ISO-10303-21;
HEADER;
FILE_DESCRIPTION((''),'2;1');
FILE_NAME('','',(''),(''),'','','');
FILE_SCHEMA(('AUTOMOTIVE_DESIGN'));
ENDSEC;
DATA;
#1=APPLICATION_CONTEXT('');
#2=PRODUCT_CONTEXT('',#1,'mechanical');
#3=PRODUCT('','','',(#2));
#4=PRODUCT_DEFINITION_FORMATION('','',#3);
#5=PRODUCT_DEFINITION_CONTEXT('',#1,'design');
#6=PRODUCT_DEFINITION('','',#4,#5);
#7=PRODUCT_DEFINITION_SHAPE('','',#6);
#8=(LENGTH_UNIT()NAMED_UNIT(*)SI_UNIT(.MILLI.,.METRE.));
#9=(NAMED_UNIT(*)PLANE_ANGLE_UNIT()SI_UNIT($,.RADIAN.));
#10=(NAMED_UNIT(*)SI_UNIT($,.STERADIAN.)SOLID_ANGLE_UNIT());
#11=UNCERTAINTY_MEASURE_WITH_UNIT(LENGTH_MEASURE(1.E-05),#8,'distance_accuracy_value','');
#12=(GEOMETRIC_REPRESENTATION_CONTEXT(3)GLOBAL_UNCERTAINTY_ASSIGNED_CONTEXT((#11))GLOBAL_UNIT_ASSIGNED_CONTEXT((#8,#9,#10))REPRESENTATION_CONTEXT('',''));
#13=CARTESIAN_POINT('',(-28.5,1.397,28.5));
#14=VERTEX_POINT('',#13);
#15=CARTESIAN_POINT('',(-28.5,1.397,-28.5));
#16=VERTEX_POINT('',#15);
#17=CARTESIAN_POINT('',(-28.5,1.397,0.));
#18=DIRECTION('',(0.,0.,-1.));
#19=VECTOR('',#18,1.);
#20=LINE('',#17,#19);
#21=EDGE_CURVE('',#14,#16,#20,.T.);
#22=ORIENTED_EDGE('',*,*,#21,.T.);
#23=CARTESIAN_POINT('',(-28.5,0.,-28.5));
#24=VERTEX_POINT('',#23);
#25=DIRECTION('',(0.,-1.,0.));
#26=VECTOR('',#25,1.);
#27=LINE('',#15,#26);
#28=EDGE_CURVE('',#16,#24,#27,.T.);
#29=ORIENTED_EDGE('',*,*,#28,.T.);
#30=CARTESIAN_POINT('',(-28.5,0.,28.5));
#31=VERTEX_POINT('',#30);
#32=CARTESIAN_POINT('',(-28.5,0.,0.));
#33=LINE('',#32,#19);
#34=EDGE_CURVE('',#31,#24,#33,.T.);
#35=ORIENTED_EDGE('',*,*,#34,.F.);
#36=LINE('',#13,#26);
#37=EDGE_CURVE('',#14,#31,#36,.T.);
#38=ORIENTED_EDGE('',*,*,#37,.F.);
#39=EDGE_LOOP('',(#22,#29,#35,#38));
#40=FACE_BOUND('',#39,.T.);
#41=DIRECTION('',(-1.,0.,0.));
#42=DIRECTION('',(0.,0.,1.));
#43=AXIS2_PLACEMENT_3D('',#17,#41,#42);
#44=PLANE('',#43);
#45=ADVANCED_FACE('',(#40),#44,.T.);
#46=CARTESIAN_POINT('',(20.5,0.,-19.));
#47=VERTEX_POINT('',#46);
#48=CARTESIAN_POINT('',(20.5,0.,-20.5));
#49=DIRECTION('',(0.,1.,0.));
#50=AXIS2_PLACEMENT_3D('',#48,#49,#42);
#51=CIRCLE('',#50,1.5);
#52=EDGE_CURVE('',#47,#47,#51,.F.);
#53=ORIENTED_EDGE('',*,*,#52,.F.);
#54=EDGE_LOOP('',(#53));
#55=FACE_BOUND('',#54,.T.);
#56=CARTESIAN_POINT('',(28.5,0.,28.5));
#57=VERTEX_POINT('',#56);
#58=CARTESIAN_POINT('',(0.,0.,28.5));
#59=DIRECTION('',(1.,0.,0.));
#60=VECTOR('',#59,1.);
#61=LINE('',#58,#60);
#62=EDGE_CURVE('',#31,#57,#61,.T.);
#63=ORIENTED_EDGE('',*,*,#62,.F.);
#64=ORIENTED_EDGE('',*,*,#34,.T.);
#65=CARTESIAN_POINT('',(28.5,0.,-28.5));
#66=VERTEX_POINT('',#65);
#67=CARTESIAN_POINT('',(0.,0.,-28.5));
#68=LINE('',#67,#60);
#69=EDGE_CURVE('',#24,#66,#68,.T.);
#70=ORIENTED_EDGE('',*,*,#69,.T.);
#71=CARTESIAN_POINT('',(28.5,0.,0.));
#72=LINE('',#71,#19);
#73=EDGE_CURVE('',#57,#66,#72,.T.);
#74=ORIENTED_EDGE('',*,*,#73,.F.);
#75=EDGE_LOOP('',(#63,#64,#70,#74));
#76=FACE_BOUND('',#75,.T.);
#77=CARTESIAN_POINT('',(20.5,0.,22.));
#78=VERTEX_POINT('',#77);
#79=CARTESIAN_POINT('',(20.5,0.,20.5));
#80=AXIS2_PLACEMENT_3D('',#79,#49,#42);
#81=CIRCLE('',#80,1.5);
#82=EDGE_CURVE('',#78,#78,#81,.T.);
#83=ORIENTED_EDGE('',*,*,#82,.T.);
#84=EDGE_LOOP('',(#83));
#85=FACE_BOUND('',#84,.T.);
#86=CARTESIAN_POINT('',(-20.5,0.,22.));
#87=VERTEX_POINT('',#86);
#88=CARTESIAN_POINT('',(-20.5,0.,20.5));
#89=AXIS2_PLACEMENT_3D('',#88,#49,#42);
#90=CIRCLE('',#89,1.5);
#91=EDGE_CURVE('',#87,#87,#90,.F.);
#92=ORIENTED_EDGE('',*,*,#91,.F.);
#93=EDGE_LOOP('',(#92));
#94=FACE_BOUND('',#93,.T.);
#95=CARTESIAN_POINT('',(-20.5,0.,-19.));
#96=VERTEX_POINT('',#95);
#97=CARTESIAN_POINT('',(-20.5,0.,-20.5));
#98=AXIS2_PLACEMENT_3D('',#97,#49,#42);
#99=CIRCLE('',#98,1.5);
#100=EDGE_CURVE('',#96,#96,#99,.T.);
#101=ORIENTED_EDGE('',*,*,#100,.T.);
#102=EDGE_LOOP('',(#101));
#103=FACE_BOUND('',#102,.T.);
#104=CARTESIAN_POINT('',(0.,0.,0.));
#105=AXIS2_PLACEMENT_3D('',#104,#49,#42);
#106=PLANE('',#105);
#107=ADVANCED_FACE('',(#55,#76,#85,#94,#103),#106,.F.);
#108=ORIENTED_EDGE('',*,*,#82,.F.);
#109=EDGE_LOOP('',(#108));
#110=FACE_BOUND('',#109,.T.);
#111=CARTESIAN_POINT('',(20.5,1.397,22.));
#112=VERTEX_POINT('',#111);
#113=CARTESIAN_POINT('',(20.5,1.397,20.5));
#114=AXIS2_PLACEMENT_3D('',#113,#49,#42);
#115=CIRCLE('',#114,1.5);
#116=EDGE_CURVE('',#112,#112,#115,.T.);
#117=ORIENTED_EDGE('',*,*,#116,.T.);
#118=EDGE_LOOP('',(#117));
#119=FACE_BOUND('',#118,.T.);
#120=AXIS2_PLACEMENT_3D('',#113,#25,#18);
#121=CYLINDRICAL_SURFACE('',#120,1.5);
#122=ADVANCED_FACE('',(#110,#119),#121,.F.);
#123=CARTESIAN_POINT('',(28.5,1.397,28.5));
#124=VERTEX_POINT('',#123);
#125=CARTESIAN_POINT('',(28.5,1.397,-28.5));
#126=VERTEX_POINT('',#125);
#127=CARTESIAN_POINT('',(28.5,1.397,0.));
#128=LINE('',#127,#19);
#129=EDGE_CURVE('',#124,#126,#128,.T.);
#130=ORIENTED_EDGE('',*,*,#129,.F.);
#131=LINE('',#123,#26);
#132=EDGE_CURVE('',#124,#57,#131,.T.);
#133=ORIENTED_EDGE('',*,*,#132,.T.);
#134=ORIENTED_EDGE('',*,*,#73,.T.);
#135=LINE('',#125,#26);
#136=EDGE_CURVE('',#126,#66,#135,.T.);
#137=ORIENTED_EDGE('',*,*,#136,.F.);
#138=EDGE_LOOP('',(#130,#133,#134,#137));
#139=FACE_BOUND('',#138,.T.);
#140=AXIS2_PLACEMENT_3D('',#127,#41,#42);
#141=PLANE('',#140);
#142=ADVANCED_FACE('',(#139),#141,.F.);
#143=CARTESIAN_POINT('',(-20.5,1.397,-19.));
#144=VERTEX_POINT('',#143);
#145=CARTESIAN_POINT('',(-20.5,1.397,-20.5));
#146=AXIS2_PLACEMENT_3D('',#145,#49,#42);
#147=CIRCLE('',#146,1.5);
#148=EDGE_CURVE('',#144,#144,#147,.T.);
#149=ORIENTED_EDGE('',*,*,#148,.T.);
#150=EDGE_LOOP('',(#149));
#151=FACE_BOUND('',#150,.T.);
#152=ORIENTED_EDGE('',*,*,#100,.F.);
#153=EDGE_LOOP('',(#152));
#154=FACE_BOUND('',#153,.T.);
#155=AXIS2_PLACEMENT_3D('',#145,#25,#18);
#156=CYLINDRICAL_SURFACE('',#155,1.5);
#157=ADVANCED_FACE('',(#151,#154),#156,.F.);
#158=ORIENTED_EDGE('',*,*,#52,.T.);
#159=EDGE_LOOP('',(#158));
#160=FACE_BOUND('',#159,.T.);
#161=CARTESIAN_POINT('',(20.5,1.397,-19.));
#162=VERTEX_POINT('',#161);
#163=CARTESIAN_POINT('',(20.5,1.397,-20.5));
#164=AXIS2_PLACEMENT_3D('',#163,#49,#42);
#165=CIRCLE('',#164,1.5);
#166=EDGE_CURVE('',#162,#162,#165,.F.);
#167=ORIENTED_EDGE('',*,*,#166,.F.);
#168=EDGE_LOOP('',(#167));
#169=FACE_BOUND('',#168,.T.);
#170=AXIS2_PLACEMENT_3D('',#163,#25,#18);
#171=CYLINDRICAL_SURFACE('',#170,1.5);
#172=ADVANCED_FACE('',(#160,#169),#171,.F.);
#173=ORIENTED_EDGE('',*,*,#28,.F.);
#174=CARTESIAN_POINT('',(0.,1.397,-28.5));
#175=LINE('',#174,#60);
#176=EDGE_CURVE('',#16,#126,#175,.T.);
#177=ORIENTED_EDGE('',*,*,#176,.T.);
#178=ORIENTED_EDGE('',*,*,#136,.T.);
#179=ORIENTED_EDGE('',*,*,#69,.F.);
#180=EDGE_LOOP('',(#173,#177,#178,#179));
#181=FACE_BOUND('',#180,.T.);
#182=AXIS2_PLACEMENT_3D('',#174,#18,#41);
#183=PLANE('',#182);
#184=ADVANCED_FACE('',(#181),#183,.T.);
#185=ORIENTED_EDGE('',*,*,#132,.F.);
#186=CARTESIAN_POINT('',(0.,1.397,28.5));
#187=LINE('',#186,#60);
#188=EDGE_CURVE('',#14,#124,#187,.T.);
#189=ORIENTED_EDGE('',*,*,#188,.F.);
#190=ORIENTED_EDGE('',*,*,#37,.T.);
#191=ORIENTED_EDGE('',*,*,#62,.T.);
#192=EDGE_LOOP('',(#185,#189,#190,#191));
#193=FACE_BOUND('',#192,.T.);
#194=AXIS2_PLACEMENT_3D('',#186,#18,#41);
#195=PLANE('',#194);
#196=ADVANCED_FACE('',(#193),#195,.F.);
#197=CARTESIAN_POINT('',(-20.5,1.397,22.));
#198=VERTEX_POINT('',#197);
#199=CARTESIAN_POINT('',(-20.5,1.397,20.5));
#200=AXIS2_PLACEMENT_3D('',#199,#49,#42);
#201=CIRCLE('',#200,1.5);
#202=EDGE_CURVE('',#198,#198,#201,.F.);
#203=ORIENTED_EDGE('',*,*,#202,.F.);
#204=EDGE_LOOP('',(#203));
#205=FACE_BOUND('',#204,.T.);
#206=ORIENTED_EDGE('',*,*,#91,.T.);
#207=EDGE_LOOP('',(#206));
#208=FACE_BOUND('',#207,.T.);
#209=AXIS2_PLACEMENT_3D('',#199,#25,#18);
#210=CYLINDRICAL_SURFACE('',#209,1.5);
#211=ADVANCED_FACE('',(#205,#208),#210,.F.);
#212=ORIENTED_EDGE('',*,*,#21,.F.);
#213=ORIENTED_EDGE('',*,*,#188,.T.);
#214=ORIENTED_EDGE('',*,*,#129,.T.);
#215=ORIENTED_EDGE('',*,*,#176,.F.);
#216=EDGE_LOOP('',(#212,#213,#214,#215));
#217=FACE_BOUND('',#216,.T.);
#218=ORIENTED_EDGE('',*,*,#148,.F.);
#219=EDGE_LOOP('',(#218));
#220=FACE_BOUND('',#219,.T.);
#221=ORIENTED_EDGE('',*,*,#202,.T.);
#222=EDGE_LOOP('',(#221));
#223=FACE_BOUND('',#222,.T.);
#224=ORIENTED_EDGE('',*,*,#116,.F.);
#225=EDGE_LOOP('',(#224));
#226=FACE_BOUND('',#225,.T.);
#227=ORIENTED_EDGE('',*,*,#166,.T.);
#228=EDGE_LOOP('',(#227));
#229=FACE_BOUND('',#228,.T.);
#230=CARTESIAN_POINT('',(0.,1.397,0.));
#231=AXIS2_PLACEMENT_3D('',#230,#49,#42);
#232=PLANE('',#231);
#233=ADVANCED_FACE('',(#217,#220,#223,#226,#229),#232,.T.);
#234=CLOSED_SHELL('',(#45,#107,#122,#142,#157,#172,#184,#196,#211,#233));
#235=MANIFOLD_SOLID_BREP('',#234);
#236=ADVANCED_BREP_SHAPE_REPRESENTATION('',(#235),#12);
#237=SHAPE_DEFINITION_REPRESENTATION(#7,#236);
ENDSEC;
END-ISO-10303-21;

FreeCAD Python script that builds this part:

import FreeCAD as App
import Part
import Sketcher


def add_polygon(sketch, points):
    """Adds a closed chain of lines whose ends are joined by coincident constraints."""
    first, n = sketch.GeometryCount, len(points)
    for a, b in zip(points, points[1:] + points[:1]):
        sketch.addGeometry(Part.LineSegment(App.Vector(*a, 0), App.Vector(*b, 0)), False)
    for i in range(n):
        sketch.addConstraint(Sketcher.Constraint("Coincident", first + i, 2, first + (i + 1) % n, 1))

doc = App.newDocument("Part")
body = doc.addObject("PartDesign::Body", "Body")

sketch1 = body.newObject("Sketcher::SketchObject", "Sketch")
sketch1.AttachmentSupport = (doc.getObject("XZ_Plane"), [""])
sketch1.MapMode = "FlatFace"
add_polygon(sketch1, [(-28.5, -28.5), (-28.5, 28.5), (28.5, 28.5), (28.5, -28.5)])
sketch1.addGeometry(Part.Circle(App.Vector(-20.5, 20.5, 0), App.Vector(0, 0, 1), 1.5), False)
sketch1.addGeometry(Part.Circle(App.Vector(20.5, 20.5, 0), App.Vector(0, 0, 1), 1.5), False)
sketch1.addGeometry(Part.Circle(App.Vector(-20.5, -20.5, 0), App.Vector(0, 0, 1), 1.5), False)
sketch1.addGeometry(Part.Circle(App.Vector(20.5, -20.5, 0), App.Vector(0, 0, 1), 1.5), False)
sketch1.addConstraint(Sketcher.Constraint("Vertical", 0))
sketch1.addConstraint(Sketcher.Constraint("Horizontal", 1))
sketch1.addConstraint(Sketcher.Constraint("Vertical", 2))
sketch1.addConstraint(Sketcher.Constraint("Horizontal", 3))
sketch1.addConstraint(Sketcher.Constraint("Equal", 4, 5))
sketch1.addConstraint(Sketcher.Constraint("Equal", 5, 6))
sketch1.addConstraint(Sketcher.Constraint("Equal", 6, 7))
sketch1.addConstraint(Sketcher.Constraint("Symmetric", 5, 3, 6, 3, -1, 1))
sketch1.addConstraint(Sketcher.Constraint("Symmetric", 4, 3, 7, 3, -1, 1))
sketch1.addConstraint(Sketcher.Constraint("Symmetric", 0, 2, 2, 2, -1, 1))
sketch1.addConstraint(Sketcher.Constraint("Symmetric", 4, 3, 5, 3, -2))
sketch1.addConstraint(Sketcher.Constraint("Equal", 3, 0))
sketch1.addConstraint(Sketcher.Constraint("Diameter", 4, 3.0))
sketch1.addConstraint(Sketcher.Constraint("DistanceX", 1, 1, 1, 2, 57.0))
sketch1.addConstraint(Sketcher.Constraint("DistanceX", 4, 3, 5, 3, 41.0))
sketch1.addConstraint(Sketcher.Constraint("DistanceY", 6, 3, 4, 3, 41.0))
pad1 = body.newObject("PartDesign::Pad", "Pad")
pad1.Profile = sketch1
pad1.Length = 1.397
pad1.Reversed = True

doc.recompute()
